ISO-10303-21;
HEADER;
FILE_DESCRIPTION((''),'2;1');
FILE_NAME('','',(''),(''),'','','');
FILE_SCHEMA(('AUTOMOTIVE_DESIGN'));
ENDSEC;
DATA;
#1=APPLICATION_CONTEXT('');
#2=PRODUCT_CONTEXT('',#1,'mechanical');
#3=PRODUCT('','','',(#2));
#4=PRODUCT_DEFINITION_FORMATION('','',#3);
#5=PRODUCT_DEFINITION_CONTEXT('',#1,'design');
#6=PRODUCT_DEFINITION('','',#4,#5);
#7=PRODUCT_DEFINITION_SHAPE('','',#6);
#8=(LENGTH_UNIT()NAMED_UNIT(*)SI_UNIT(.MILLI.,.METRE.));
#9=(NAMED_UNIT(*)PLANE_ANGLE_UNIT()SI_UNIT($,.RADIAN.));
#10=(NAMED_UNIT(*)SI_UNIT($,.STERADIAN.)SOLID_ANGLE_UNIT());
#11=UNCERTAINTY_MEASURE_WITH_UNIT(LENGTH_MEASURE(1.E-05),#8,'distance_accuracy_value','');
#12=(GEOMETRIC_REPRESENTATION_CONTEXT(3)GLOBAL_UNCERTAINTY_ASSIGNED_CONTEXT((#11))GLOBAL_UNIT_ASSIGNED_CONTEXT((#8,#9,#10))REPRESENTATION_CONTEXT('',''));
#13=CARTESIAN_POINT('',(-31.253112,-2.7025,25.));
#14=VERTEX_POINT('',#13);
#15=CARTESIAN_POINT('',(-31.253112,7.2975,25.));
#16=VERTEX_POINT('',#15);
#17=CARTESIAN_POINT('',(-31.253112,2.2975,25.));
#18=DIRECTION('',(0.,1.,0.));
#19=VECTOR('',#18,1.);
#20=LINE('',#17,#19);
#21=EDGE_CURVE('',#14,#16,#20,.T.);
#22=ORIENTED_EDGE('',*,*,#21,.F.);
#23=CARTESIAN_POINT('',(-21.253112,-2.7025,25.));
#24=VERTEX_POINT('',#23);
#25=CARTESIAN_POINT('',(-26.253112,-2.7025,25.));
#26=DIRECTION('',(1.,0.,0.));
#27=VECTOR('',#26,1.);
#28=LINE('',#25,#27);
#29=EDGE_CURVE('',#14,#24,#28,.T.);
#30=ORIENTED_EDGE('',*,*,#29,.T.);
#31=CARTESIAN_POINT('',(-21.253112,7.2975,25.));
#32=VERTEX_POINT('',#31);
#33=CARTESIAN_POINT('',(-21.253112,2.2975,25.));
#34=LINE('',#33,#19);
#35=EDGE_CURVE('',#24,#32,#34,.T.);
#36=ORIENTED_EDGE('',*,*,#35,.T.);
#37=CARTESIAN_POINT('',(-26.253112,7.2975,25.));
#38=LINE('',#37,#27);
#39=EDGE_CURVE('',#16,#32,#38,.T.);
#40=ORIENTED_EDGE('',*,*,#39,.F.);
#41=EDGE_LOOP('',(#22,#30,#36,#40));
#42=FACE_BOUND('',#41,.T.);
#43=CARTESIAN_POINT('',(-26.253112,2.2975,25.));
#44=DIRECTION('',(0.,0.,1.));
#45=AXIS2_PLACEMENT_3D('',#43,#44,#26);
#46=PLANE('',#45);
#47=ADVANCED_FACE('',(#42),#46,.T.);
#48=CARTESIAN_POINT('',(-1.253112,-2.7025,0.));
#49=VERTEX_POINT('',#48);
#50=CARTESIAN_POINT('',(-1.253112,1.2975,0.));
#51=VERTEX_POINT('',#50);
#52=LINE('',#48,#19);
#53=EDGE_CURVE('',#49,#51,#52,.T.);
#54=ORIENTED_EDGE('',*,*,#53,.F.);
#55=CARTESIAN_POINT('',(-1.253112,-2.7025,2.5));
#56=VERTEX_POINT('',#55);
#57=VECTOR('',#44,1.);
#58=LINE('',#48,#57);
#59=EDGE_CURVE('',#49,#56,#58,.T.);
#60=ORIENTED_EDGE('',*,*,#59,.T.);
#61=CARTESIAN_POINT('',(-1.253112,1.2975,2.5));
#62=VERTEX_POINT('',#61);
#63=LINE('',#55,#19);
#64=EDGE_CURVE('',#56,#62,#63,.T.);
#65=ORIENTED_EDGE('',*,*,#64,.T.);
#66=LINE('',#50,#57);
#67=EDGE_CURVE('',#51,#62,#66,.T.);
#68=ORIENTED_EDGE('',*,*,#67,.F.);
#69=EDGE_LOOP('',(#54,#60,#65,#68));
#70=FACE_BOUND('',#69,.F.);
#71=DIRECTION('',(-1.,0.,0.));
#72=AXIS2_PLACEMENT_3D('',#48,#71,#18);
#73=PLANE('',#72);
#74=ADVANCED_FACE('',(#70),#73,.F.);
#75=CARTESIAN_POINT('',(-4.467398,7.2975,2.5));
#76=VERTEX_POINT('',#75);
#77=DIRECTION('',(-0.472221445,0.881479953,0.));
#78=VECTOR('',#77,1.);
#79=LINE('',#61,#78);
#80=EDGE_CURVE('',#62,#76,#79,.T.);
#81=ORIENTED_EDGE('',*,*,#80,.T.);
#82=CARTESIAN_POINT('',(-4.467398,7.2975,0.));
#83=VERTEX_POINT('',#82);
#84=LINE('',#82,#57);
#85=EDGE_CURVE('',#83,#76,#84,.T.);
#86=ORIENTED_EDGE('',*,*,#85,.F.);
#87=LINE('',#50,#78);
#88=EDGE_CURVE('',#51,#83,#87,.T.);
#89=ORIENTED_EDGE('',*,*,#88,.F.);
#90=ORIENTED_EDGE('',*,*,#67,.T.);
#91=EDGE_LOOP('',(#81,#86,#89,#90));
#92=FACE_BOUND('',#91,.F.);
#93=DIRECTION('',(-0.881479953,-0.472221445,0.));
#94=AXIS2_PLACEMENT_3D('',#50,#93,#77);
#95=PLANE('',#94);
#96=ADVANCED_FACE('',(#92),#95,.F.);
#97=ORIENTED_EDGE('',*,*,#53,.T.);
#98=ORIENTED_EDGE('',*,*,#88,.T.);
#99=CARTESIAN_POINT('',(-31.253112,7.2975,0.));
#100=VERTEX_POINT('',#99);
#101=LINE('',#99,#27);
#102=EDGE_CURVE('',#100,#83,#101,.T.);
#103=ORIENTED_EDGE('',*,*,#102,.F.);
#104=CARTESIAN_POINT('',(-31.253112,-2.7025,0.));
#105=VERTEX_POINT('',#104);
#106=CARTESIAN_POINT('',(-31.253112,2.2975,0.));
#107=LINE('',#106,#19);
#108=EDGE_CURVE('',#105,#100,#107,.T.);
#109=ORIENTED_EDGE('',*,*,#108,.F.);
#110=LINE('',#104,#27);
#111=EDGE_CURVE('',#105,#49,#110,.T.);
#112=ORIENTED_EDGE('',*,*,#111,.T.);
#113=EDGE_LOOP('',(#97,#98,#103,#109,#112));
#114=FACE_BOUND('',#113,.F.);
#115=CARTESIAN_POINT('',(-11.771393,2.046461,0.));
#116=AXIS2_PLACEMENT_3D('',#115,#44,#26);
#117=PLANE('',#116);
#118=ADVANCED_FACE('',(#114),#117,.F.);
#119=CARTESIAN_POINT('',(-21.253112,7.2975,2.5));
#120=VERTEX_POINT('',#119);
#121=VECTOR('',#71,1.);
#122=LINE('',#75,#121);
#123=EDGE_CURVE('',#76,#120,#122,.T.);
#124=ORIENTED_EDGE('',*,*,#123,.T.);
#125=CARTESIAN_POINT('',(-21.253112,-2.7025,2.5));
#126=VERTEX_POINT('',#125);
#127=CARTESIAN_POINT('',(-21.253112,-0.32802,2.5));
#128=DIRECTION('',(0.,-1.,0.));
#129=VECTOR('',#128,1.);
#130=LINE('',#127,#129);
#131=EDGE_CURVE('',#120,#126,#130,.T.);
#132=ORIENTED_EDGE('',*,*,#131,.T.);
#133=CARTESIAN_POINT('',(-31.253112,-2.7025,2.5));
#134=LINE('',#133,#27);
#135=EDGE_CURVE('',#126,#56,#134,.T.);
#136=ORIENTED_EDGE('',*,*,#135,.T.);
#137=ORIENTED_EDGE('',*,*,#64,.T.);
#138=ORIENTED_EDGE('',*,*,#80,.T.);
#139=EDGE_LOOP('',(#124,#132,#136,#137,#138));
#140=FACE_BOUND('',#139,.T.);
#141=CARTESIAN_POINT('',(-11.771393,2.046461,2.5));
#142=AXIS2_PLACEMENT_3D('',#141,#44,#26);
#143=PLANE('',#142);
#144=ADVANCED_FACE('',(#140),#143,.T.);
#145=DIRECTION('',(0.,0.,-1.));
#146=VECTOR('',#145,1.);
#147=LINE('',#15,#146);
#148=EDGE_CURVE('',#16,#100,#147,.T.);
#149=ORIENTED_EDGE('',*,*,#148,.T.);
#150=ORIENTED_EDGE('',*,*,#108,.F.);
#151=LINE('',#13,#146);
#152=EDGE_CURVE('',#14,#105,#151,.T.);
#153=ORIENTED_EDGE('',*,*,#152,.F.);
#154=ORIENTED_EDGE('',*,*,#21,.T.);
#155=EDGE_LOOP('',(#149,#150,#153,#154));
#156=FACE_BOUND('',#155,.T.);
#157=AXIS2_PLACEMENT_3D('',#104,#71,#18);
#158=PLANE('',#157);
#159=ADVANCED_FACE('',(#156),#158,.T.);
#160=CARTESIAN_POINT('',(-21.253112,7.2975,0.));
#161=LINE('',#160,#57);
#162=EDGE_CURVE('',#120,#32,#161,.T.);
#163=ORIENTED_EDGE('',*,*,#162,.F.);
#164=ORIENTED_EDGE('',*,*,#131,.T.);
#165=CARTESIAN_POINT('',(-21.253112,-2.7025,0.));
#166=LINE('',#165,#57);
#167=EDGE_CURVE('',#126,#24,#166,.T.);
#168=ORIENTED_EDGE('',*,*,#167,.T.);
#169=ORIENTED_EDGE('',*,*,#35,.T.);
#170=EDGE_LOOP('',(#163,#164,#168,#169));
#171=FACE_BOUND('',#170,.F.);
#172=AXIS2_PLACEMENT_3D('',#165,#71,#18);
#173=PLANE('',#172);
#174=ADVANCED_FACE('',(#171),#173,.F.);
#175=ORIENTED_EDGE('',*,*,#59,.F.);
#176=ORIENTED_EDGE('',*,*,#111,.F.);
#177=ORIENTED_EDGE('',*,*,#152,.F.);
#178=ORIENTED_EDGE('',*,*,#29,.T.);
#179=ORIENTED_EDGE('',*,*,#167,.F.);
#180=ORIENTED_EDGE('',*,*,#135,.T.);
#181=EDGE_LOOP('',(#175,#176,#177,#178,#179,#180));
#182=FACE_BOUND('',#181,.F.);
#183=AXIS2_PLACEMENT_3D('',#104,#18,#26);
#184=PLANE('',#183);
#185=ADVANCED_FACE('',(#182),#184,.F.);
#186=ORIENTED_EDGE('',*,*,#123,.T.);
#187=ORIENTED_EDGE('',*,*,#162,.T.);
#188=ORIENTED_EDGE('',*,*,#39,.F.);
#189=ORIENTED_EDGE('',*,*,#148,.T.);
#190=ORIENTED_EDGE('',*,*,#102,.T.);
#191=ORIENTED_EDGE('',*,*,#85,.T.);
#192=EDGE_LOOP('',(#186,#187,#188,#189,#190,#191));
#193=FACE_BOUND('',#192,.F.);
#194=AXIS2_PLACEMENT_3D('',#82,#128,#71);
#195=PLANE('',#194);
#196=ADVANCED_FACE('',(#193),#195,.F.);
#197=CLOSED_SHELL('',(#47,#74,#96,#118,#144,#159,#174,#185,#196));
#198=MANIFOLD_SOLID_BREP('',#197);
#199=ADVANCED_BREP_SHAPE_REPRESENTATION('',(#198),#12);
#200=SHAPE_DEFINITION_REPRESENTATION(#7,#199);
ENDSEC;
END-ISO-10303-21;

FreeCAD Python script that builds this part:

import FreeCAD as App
import Part
import Sketcher

doc = App.newDocument("Part")
body = doc.addObject("PartDesign::Body", "Body")

# Sketch on XY plane
sketch1 = body.newObject("Sketcher::SketchObject", "Sketch")
sketch1.AttachmentSupport = (doc.getObject("XY_Plane"), [""])
sketch1.MapMode = "FlatFace"
sketch1.addGeometry(Part.LineSegment(App.Vector(-1.253112, -2.7025, 0), App.Vector(-1.253112, 1.2975, 0)), False)
sketch1.addGeometry(Part.LineSegment(App.Vector(-1.253112, 1.2975, 0), App.Vector(-4.467398, 7.2975, 0)), False)
sketch1.addGeometry(Part.LineSegment(App.Vector(-4.467398, 7.2975, 0), App.Vector(-31.253112, 7.2975, 0)), False)
sketch1.addGeometry(Part.LineSegment(App.Vector(-31.253112, 7.2975, 0), App.Vector(-31.253112, -2.7025, 0)), False)
sketch1.addGeometry(Part.LineSegment(App.Vector(-31.253112, -2.7025, 0), App.Vector(-1.253112, -2.7025, 0)), False)
sketch1.addConstraint(Sketcher.Constraint("Coincident", 0, 2, 1, 1))
sketch1.addConstraint(Sketcher.Constraint("Coincident", 1, 2, 2, 1))
sketch1.addConstraint(Sketcher.Constraint("Coincident", 2, 2, 3, 1))
sketch1.addConstraint(Sketcher.Constraint("Coincident", 3, 2, 4, 1))
sketch1.addConstraint(Sketcher.Constraint("Coincident", 4, 2, 0, 1))
sketch1.addConstraint(Sketcher.Constraint("Vertical", 0))
sketch1.addConstraint(Sketcher.Constraint("Horizontal", 2))
sketch1.addConstraint(Sketcher.Constraint("Vertical", 3))
sketch1.addConstraint(Sketcher.Constraint("Horizontal", 4))
sketch1.addConstraint(Sketcher.Constraint("DistanceX", 4, 1, 4, 2, 30.0))
sketch1.addConstraint(Sketcher.Constraint("DistanceY", 0, 1, 0, 2, 4.0))
sketch1.addConstraint(Sketcher.Constraint("DistanceY", 3, 2, 3, 1, 10.0))
sketch1.addConstraint(Sketcher.Constraint("DistanceY", -1, 1, 0, 2, 1.2975))
sketch1.addConstraint(Sketcher.Constraint("DistanceX", 1, 2, -1, 1, 4.467398))
sketch1.addConstraint(Sketcher.Constraint("DistanceX", 2, 2, 2, 1, 26.785714))
pad1 = body.newObject("PartDesign::Pad", "Pad")
pad1.Profile = sketch1
pad1.Length = 2.5

# Sketch on XY plane
sketch2 = body.newObject("Sketcher::SketchObject", "Sketch001")
sketch2.AttachmentSupport = (doc.getObject("XY_Plane"), [""])
sketch2.MapMode = "FlatFace"
sketch2.addGeometry(Part.LineSegment(App.Vector(-31.253112, 7.2975, 0), App.Vector(-31.253112, -2.7025, 0)), False)
sketch2.addGeometry(Part.LineSegment(App.Vector(-31.253112, -2.7025, 0), App.Vector(-21.253112, -2.7025, 0)), False)
sketch2.addGeometry(Part.LineSegment(App.Vector(-21.253112, -2.7025, 0), App.Vector(-21.253112, 7.2975, 0)), False)
sketch2.addGeometry(Part.LineSegment(App.Vector(-21.253112, 7.2975, 0), App.Vector(-31.253112, 7.2975, 0)), False)
sketch2.addConstraint(Sketcher.Constraint("Coincident", 0, 2, 1, 1))
sketch2.addConstraint(Sketcher.Constraint("Coincident", 1, 2, 2, 1))
sketch2.addConstraint(Sketcher.Constraint("Coincident", 2, 2, 3, 1))
sketch2.addConstraint(Sketcher.Constraint("Coincident", 3, 2, 0, 1))
sketch2.addConstraint(Sketcher.Constraint("Vertical", 0))
sketch2.addConstraint(Sketcher.Constraint("Horizontal", 1))
sketch2.addConstraint(Sketcher.Constraint("Vertical", 2))
sketch2.addConstraint(Sketcher.Constraint("Horizontal", 3))
sketch2.addConstraint(Sketcher.Constraint("Equal", 3, 0))
sketch2.addConstraint(Sketcher.Constraint("DistanceX", 1, 1, 1, 2, 10.0))
sketch2.addConstraint(Sketcher.Constraint("DistanceY", 0, 2, -1, 1, 2.7025))
sketch2.addConstraint(Sketcher.Constraint("DistanceX", 0, 2, -1, 1, 31.253112))
pad2 = body.newObject("PartDesign::Pad", "Pad001")
pad2.Profile = sketch2
pad2.Length = 25

doc.recompute()
